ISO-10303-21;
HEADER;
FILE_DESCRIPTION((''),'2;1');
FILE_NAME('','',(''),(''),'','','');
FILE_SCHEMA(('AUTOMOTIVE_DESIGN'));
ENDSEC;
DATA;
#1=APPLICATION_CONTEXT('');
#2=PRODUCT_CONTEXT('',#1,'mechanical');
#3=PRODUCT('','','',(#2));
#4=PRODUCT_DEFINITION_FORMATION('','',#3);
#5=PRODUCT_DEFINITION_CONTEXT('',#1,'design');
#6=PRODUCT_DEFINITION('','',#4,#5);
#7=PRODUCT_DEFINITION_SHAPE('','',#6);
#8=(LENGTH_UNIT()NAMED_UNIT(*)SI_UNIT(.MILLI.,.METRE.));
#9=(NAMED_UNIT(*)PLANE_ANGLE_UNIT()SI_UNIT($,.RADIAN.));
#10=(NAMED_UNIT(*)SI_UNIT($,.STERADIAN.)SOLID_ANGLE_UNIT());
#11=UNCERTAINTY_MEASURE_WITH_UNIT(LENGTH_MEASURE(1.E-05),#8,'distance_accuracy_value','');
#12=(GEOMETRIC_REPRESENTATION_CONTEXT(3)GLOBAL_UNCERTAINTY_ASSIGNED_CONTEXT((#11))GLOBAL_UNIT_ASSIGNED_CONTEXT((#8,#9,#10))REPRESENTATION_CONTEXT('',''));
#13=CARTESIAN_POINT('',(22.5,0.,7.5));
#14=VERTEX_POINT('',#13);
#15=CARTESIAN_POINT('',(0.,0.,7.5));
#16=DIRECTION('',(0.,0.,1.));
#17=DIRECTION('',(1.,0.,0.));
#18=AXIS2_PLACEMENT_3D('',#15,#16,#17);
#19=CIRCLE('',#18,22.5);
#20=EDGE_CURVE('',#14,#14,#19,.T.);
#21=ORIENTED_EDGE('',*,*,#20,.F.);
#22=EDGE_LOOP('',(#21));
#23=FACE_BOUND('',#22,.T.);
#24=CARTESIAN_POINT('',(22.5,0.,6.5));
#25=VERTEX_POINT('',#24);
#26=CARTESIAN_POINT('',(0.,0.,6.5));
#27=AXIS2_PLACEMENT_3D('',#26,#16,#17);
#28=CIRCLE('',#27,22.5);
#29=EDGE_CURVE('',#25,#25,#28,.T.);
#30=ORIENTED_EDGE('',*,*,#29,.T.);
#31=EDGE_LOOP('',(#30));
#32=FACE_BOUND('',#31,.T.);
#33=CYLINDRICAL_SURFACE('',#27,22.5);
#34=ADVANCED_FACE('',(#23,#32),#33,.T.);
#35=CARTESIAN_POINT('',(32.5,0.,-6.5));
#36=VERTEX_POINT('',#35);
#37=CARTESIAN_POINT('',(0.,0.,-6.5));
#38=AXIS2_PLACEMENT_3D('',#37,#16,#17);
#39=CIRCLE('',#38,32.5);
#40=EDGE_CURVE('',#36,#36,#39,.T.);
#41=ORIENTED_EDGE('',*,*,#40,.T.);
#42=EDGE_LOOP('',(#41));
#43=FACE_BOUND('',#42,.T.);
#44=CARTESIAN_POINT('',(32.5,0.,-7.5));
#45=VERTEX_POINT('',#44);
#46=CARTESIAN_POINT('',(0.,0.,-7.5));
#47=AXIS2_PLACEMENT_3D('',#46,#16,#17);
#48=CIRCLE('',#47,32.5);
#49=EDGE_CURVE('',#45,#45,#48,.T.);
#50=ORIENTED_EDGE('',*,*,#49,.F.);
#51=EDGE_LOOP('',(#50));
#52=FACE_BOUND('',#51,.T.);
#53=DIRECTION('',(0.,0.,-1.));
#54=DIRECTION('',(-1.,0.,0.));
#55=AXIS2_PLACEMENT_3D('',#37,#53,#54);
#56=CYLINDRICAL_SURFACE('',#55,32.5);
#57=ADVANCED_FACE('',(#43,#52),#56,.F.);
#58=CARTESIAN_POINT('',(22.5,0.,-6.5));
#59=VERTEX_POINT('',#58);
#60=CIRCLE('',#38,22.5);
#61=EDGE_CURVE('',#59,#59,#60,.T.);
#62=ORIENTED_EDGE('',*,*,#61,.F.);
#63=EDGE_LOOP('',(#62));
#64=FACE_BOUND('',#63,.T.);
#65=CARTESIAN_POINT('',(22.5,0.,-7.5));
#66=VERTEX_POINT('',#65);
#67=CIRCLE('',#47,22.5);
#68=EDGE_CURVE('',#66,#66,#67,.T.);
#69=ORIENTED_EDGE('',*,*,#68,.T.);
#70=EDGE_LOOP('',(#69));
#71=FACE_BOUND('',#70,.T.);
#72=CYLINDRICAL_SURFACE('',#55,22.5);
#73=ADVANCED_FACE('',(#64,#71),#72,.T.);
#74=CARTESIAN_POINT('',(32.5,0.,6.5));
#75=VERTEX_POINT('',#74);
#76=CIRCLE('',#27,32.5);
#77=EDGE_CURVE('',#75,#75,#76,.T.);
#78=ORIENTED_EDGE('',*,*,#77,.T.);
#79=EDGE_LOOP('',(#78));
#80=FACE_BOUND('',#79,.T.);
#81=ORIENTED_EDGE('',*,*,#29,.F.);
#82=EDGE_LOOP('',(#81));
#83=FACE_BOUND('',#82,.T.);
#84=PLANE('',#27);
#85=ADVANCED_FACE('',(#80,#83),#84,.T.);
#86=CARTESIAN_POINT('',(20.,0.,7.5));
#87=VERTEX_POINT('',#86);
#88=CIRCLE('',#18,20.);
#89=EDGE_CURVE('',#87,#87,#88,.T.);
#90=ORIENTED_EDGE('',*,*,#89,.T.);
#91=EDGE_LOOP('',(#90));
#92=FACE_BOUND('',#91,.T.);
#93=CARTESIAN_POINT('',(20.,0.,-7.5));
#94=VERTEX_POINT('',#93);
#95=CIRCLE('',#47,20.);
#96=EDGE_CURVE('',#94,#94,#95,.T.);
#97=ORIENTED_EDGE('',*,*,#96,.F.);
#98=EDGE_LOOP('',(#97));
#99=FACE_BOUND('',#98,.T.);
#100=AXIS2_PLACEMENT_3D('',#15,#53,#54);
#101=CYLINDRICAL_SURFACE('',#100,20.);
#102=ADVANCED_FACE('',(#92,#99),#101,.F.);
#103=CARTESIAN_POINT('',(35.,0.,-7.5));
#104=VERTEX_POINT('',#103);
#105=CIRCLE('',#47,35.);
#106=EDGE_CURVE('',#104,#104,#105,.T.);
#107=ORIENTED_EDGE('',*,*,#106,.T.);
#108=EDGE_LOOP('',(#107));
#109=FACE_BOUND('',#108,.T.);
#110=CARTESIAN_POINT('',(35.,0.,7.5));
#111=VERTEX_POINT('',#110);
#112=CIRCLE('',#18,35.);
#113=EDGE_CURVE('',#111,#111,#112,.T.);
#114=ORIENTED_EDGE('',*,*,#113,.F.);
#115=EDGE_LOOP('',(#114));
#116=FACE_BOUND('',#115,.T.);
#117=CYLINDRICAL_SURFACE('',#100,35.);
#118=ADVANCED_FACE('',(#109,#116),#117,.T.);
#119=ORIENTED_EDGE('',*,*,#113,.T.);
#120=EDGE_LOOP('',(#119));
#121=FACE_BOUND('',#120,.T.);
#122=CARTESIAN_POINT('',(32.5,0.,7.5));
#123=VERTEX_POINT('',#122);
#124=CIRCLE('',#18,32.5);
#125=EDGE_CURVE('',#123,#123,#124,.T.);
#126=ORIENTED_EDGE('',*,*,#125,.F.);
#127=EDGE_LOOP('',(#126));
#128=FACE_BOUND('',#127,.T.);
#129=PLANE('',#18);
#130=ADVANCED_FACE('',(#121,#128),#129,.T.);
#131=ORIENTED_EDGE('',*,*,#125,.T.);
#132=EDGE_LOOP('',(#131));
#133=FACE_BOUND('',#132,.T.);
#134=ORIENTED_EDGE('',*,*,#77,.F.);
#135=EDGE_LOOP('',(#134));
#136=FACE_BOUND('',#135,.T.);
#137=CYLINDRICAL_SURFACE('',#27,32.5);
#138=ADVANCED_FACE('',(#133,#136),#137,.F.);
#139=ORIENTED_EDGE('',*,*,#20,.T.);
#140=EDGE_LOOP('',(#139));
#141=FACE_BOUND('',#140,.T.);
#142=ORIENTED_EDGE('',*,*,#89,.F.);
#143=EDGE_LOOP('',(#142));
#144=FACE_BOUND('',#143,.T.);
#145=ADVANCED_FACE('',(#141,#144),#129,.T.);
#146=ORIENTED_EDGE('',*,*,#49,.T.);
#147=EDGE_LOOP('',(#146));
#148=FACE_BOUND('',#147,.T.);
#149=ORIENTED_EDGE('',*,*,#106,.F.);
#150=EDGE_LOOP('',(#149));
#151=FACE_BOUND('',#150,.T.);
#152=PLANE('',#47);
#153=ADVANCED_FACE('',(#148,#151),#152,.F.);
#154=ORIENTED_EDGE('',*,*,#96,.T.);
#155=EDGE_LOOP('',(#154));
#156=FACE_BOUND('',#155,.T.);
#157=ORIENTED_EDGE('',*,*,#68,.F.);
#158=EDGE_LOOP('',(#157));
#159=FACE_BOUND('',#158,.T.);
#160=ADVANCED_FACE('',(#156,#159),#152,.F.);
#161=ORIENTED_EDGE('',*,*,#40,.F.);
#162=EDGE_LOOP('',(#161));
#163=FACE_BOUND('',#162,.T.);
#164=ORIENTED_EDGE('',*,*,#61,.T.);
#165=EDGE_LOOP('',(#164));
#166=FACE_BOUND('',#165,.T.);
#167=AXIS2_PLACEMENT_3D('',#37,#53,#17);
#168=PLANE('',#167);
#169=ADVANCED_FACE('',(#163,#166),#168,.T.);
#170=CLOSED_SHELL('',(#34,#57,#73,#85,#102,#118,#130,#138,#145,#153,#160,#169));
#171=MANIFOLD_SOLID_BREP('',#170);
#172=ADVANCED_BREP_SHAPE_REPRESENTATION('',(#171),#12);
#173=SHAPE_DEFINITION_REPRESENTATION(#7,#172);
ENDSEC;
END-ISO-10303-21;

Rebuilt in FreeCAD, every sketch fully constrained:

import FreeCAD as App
import Part
import Sketcher
from FreeCAD import Vector

doc = App.newDocument("Part")
params = doc.addObject("Spreadsheet::Sheet", "Params")
for row, (alias, value) in enumerate([
    ("sketch1_diameter", "70 mm"),
    ("sketch1_diameter2", "40 mm"),
    ("pad1_length", "15 mm"),
    ("sketch2_diameter", "65 mm"),
    ("sketch2_diameter2", "45 mm"),
    ("pocket1_length", "1 mm"),
], start=1):
    params.set(f"A{row}", alias)
    params.set(f"B{row}", "=" + value)
    params.setAlias(f"B{row}", alias)

body = doc.addObject("PartDesign::Body", "Body")

sketch1 = body.newObject("Sketcher::SketchObject", "Sketch")
sketch1.AttachmentSupport = (doc.getObject("XY_Plane"), [""])
sketch1.MapMode = "FlatFace"
sketch1.addGeometry(Part.Circle(Vector(0, 0, 0), Vector(0, 0, 1), 35), False)
sketch1.addGeometry(Part.Circle(Vector(0, 0, 0), Vector(0, 0, 1), 20), False)
sketch1.addConstraint(Sketcher.Constraint("Coincident", 0, 3, -1, 1))
sketch1.addConstraint(Sketcher.Constraint("Coincident", 1, 3, -1, 1))
sketch1.addConstraint(Sketcher.Constraint("Diameter", 0, 70.0))
sketch1.addConstraint(Sketcher.Constraint("Diameter", 1, 40.0))
sketch1.setExpression("Constraints[2]", "Params.sketch1_diameter")
sketch1.setExpression("Constraints[3]", "Params.sketch1_diameter2")
pad1 = body.newObject("PartDesign::Pad", "Pad")
pad1.Profile = sketch1
pad1.setExpression("Length", "Params.pad1_length")
pad1.Midplane = True

sketch2 = body.newObject("Sketcher::SketchObject", "Sketch001")
sketch2.AttachmentSupport = (doc.getObject("XY_Plane"), [""])
sketch2.MapMode = "FlatFace"
sketch2.AttachmentOffset = App.Placement(Vector(0, 0, 7.5), App.Rotation())
sketch2.addGeometry(Part.Circle(Vector(0, 0, 0), Vector(0, 0, 1), 32.5), False)
sketch2.addGeometry(Part.Circle(Vector(0, 0, 0), Vector(0, 0, 1), 22.5), False)
sketch2.addConstraint(Sketcher.Constraint("Coincident", 0, 3, -1, 1))
sketch2.addConstraint(Sketcher.Constraint("Coincident", 1, 3, -1, 1))
sketch2.addConstraint(Sketcher.Constraint("Diameter", 0, 65.0))
sketch2.addConstraint(Sketcher.Constraint("Diameter", 1, 45.0))
sketch2.setExpression("Constraints[2]", "Params.sketch2_diameter")
sketch2.setExpression("Constraints[3]", "Params.sketch2_diameter2")
pocket1 = body.newObject("PartDesign::Pocket", "Pocket")
pocket1.Profile = sketch2
pocket1.setExpression("Length", "Params.pocket1_length")
doc.recompute()

mirrored = body.newObject("PartDesign::Mirrored", "Mirrored")
mirrored.Originals = [pocket1]
mirrored.MirrorPlane = (doc.getObject("XY_Plane"), [""])
body.Tip = mirrored

doc.recompute()
